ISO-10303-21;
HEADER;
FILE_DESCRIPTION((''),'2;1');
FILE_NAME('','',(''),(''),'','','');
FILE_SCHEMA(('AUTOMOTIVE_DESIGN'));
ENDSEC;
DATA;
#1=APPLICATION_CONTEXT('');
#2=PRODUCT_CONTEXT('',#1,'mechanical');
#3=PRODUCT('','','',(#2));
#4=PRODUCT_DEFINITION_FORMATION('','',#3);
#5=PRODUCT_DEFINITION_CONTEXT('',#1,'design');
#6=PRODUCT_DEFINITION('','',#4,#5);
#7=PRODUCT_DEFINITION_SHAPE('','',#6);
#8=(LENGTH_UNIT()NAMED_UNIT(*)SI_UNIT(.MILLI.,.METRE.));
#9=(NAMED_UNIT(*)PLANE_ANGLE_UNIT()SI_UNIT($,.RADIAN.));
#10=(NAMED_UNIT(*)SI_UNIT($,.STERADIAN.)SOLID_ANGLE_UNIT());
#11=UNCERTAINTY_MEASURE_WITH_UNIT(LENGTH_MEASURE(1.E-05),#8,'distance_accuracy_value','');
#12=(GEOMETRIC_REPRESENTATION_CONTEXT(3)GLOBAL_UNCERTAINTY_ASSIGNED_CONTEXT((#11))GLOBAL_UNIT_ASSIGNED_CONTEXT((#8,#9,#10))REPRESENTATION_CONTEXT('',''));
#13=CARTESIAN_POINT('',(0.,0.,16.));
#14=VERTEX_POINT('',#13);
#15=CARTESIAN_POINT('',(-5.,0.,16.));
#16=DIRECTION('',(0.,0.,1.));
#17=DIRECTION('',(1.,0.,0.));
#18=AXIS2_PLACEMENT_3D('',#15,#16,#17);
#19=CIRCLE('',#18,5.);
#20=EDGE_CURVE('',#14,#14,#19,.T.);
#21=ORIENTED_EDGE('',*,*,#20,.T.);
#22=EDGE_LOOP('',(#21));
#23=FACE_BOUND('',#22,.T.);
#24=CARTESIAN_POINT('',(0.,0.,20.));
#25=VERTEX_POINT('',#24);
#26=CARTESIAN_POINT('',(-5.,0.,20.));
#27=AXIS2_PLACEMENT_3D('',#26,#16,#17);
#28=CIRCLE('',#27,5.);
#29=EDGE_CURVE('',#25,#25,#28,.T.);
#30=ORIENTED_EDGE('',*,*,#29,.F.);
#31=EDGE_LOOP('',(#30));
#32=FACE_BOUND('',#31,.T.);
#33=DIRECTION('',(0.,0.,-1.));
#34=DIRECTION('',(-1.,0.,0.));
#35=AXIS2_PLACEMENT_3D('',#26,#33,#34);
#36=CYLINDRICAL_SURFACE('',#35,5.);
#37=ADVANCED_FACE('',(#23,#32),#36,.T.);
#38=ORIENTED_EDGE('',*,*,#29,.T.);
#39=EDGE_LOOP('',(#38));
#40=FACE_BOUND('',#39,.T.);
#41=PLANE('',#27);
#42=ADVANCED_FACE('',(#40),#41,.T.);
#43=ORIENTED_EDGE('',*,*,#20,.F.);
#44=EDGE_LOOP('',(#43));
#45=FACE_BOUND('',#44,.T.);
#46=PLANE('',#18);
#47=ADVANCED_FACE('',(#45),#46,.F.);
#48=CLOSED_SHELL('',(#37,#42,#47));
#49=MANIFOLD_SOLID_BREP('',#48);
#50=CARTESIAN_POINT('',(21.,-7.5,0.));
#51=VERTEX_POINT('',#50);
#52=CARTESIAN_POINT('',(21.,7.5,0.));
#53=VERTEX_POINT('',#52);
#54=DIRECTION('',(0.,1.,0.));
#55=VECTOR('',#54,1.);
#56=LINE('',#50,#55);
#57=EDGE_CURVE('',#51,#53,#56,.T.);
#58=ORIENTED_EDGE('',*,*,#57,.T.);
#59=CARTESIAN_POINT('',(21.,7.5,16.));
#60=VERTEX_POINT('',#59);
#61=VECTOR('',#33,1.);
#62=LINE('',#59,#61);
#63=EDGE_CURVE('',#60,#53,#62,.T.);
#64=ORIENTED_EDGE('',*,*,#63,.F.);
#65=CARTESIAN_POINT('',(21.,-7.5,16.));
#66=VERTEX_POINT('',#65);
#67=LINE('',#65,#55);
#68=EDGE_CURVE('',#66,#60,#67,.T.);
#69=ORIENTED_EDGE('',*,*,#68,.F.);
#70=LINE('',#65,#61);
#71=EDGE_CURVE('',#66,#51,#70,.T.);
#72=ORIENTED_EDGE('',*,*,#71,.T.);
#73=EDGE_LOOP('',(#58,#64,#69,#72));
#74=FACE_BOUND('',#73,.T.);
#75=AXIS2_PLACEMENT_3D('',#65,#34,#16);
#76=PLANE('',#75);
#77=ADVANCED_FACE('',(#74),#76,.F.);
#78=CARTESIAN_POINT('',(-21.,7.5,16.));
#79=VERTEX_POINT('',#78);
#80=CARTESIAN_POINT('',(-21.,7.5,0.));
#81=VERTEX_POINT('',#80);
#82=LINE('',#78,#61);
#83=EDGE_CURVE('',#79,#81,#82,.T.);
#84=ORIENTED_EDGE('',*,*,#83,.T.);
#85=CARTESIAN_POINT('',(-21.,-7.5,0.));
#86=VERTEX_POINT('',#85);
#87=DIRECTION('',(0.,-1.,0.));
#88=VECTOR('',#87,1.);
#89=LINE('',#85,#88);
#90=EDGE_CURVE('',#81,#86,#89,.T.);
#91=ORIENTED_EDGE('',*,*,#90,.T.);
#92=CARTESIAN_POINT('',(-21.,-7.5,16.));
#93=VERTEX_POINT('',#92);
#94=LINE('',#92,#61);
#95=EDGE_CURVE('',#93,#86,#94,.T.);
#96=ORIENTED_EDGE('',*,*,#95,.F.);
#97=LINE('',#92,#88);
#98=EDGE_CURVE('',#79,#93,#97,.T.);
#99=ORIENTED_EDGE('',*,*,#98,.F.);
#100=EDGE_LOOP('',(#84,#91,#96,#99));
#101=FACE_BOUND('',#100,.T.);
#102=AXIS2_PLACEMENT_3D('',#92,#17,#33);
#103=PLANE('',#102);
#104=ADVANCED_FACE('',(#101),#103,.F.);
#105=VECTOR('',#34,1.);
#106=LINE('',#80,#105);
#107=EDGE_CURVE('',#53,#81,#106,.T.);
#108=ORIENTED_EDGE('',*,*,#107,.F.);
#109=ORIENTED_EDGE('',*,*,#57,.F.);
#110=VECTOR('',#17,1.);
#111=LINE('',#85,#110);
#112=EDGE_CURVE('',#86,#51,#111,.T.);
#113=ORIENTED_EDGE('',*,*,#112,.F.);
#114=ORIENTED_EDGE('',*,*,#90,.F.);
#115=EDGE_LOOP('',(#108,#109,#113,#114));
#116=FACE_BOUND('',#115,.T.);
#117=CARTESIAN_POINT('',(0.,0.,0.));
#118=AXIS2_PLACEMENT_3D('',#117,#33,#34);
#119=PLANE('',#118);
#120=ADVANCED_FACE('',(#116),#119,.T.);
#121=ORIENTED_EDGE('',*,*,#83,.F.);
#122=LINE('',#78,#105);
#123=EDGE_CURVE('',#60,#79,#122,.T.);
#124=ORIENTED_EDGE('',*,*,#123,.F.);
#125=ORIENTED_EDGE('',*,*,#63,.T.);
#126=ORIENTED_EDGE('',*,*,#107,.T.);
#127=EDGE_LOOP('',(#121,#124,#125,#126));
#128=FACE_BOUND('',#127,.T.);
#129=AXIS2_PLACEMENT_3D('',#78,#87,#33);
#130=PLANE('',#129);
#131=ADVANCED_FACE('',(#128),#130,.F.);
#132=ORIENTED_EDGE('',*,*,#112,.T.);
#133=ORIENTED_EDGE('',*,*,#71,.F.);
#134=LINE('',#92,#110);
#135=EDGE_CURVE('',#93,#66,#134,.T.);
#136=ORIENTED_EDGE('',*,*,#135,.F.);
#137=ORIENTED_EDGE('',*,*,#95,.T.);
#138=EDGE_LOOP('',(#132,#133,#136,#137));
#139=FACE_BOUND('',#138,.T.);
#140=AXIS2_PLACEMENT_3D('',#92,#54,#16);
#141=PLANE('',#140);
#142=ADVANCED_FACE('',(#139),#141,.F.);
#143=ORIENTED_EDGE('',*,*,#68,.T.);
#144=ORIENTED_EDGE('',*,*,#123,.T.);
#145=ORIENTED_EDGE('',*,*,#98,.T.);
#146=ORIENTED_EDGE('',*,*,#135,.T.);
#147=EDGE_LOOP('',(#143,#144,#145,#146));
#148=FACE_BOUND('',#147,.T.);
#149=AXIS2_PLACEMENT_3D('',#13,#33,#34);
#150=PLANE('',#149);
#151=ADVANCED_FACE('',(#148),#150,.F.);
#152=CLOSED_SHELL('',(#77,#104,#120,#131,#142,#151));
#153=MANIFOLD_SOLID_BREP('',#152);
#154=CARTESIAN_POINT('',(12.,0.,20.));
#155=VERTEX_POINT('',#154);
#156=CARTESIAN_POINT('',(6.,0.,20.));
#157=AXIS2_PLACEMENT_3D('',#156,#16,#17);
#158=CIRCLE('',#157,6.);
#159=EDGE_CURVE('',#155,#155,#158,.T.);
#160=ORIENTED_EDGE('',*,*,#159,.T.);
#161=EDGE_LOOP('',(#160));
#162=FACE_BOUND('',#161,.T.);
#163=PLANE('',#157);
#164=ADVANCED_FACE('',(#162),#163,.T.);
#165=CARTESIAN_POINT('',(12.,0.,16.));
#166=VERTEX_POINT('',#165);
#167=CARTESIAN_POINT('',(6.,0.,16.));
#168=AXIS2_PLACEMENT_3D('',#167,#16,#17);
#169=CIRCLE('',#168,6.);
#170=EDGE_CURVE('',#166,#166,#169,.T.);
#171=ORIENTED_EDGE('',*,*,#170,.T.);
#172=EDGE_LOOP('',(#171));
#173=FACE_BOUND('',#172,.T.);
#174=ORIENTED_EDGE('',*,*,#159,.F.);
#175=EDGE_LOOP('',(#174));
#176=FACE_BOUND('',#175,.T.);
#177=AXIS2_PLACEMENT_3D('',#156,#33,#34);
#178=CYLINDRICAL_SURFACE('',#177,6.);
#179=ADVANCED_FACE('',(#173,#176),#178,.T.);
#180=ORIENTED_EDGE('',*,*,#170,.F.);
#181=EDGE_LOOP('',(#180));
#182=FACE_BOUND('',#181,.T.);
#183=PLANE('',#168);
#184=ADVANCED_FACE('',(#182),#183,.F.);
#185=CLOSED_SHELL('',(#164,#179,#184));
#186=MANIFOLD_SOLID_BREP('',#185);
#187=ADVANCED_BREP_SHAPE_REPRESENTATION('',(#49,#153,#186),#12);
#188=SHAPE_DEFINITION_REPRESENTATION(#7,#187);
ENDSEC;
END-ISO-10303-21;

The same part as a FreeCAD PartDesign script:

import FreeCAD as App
import Part
import Sketcher
from FreeCAD import Vector
Q = App.Units.Quantity


def add_polygon(sketch, points):
    """Adds a closed chain of lines whose ends are joined by coincident constraints."""
    first, n = sketch.GeometryCount, len(points)
    for a, b in zip(points, points[1:] + points[:1]):
        sketch.addGeometry(Part.LineSegment(App.Vector(*a, 0), App.Vector(*b, 0)), False)
    for i in range(n):
        sketch.addConstraint(Sketcher.Constraint("Coincident", first + i, 2, first + (i + 1) % n, 1))

doc = App.newDocument("Part")
body = doc.addObject("PartDesign::Body", "Body")

# Sketch on XY plane
sketch1 = doc.addObject("Sketcher::SketchObject", "Sketch")
body.addObject(sketch1)
sketch1.AttachmentSupport = (doc.XY_Plane, [""])
sketch1.MapMode = "FlatFace"
add_polygon(sketch1, [(-21, 8), (-21, -8), (21, -8), (21, 8)])  # lines 0-3
sketch1.addConstraint([
    Sketcher.Constraint("Vertical", 0),
    Sketcher.Constraint("Horizontal", 1),
    Sketcher.Constraint("Vertical", 2),
    Sketcher.Constraint("Horizontal", 3),
    Sketcher.Constraint("Symmetric", 0, 2, 2, 2, -1, 1),
    Sketcher.Constraint("DistanceX", 1, 1, 1, 2, Q("42 mm")),
    Sketcher.Constraint("DistanceY", 0, 2, 0, 1, Q("15 mm")),
])
pad1 = doc.addObject("PartDesign::Pad", "Pad")
body.addObject(pad1)
pad1.Profile = sketch1
pad1.Length = 16
body2 = doc.addObject("PartDesign::Body", "Body001")

# Sketch on XY plane
sketch2 = doc.addObject("Sketcher::SketchObject", "Sketch001")
body2.addObject(sketch2)
sketch2.AttachmentSupport = (doc.getObject("XY_Plane001"), [""])
sketch2.MapMode = "FlatFace"
sketch2.AttachmentOffset = App.Placement(Vector(0, 0, 16), App.Rotation())
sketch2.addGeometry(Part.Circle(Vector(-5, 0, 0), Vector(0, 0, 1), 5), False)
sketch2.addConstraint([
    Sketcher.Constraint("PointOnObject", 0, 3, -1),
    Sketcher.Constraint("Diameter", 0, Q("10 mm")),
    Sketcher.Constraint("DistanceX", 0, 3, -1, 1, Q("5 mm")),
])
pad2 = doc.addObject("PartDesign::Pad", "Pad001")
body2.addObject(pad2)
pad2.Profile = sketch2
pad2.Length = 4
body3 = doc.addObject("PartDesign::Body", "Body002")

# Sketch on XY plane
sketch3 = doc.addObject("Sketcher::SketchObject", "Sketch002")
body3.addObject(sketch3)
sketch3.AttachmentSupport = (doc.getObject("XY_Plane002"), [""])
sketch3.MapMode = "FlatFace"
sketch3.AttachmentOffset = App.Placement(Vector(0, 0, 16), App.Rotation())
sketch3.addGeometry(Part.Circle(Vector(6, 0, 0), Vector(0, 0, 1), 6), False)
sketch3.addConstraint([
    Sketcher.Constraint("PointOnObject", 0, 3, -1),
    Sketcher.Constraint("Diameter", 0, Q("12 mm")),
    Sketcher.Constraint("DistanceX", -1, 1, 0, 3, Q("6 mm")),
])
pad3 = doc.addObject("PartDesign::Pad", "Pad002")
body3.addObject(pad3)
pad3.Profile = sketch3
pad3.Length = 4

doc.recompute()
